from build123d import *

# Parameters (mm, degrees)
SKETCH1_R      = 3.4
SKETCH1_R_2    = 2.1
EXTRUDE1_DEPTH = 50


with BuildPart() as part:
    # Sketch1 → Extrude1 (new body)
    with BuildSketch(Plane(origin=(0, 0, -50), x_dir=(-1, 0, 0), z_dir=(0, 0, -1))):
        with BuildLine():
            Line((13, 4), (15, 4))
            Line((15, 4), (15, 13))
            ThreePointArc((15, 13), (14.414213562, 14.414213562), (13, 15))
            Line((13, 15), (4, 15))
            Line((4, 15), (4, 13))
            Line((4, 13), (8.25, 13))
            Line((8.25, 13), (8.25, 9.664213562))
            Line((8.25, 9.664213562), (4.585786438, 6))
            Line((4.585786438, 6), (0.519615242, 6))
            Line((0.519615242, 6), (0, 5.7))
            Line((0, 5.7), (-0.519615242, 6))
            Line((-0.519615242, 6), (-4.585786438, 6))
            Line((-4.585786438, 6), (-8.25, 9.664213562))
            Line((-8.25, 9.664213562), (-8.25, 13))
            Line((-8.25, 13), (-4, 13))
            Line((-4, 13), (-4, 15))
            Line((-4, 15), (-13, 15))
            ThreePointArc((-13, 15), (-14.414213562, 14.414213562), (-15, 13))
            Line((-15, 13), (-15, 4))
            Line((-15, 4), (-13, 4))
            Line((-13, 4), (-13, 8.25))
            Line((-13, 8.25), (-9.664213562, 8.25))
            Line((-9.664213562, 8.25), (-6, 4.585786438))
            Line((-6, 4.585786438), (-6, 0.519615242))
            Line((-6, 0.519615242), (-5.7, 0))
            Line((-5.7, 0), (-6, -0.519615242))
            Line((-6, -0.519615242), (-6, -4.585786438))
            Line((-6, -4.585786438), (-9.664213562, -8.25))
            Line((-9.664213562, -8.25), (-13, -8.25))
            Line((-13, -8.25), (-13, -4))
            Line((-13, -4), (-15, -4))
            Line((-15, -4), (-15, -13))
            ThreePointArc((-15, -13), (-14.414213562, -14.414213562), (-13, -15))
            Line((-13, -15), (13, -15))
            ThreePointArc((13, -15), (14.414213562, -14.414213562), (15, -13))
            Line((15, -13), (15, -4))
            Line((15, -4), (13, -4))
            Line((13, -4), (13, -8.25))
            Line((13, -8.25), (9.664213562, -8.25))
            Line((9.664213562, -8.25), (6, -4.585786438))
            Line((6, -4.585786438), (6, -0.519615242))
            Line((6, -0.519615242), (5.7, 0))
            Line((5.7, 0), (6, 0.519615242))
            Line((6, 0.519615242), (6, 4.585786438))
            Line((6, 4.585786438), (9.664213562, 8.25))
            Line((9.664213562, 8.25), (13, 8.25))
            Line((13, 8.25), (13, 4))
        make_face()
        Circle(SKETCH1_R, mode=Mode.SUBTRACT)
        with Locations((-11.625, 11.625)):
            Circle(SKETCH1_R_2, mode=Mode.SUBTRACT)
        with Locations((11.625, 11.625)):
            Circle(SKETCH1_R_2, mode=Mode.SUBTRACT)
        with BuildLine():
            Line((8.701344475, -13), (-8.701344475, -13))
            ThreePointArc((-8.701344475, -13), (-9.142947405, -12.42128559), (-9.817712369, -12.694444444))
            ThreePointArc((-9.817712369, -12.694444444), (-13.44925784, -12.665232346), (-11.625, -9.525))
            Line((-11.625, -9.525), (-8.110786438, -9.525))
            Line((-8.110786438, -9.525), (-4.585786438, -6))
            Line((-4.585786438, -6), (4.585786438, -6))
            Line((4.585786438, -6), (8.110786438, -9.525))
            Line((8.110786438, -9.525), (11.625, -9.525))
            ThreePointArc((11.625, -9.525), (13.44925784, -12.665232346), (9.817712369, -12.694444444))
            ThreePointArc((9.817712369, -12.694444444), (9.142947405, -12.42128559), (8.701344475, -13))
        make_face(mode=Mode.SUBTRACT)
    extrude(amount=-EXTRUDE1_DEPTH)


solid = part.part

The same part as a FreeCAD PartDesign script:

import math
import FreeCAD as App
import Part
import Sketcher
from FreeCAD import Vector
Q = App.Units.Quantity

doc = App.newDocument("Part")
body = doc.addObject("PartDesign::Body", "Body")

# Sketch on XY plane
sketch1 = body.newObject("Sketcher::SketchObject", "Sketch")
sketch1.AttachmentSupport = (doc.getObject("XY_Plane"), [""])
sketch1.MapMode = "FlatFace"
sketch1.AttachmentOffset = App.Placement(Vector(0, 0, -50), App.Rotation())
sketch1.addGeometry([
    Part.LineSegment(Vector(-13, 4, 0), Vector(-15, 4, 0)),  # 0
    Part.LineSegment(Vector(-15, 4, 0), Vector(-15, 13, 0)),  # 1
    Part.ArcOfCircle(Part.Circle(Vector(-13, 13, 0), Vector(0, 0, 1), 2), math.radians(90), math.radians(180)),  # 2
    Part.LineSegment(Vector(-13, 15, 0), Vector(-4, 15, 0)),  # 3
    Part.LineSegment(Vector(-4, 15, 0), Vector(-4, 13, 0)),  # 4
    Part.LineSegment(Vector(-4, 13, 0), Vector(-8.25, 13, 0)),  # 5
    Part.LineSegment(Vector(-8.25, 13, 0), Vector(-8.25, 9.664214, 0)),  # 6
    Part.LineSegment(Vector(-8.25, 9.664214, 0), Vector(-4.585786, 6, 0)),  # 7
    Part.LineSegment(Vector(-4.585786, 6, 0), Vector(-0.519615, 6, 0)),  # 8
    Part.LineSegment(Vector(-0.519615, 6, 0), Vector(0, 5.7, 0)),  # 9
    Part.LineSegment(Vector(0, 5.7, 0), Vector(0.519615, 6, 0)),  # 10
    Part.LineSegment(Vector(0.519615, 6, 0), Vector(4.585786, 6, 0)),  # 11
    Part.LineSegment(Vector(4.585786, 6, 0), Vector(8.25, 9.664214, 0)),  # 12
    Part.LineSegment(Vector(8.25, 9.664214, 0), Vector(8.25, 13, 0)),  # 13
    Part.LineSegment(Vector(8.25, 13, 0), Vector(4, 13, 0)),  # 14
    Part.LineSegment(Vector(4, 13, 0), Vector(4, 15, 0)),  # 15
    Part.LineSegment(Vector(4, 15, 0), Vector(13, 15, 0)),  # 16
    Part.ArcOfCircle(Part.Circle(Vector(13, 13, 0), Vector(0, 0, 1), 2), math.radians(0), math.radians(90)),  # 17
    Part.LineSegment(Vector(15, 13, 0), Vector(15, 4, 0)),  # 18
    Part.LineSegment(Vector(15, 4, 0), Vector(13, 4, 0)),  # 19
    Part.LineSegment(Vector(13, 4, 0), Vector(13, 8.25, 0)),  # 20
    Part.LineSegment(Vector(13, 8.25, 0), Vector(9.664214, 8.25, 0)),  # 21
    Part.LineSegment(Vector(9.664214, 8.25, 0), Vector(6, 4.585786, 0)),  # 22
    Part.LineSegment(Vector(6, 4.585786, 0), Vector(6, 0.519615, 0)),  # 23
    Part.LineSegment(Vector(6, 0.519615, 0), Vector(5.7, 0, 0)),  # 24
    Part.LineSegment(Vector(5.7, 0, 0), Vector(6, -0.519615, 0)),  # 25
    Part.LineSegment(Vector(6, -0.519615, 0), Vector(6, -4.585786, 0)),  # 26
    Part.LineSegment(Vector(6, -4.585786, 0), Vector(9.664214, -8.25, 0)),  # 27
    Part.LineSegment(Vector(9.664214, -8.25, 0), Vector(13, -8.25, 0)),  # 28
    Part.LineSegment(Vector(13, -8.25, 0), Vector(13, -4, 0)),  # 29
    Part.LineSegment(Vector(13, -4, 0), Vector(15, -4, 0)),  # 30
    Part.LineSegment(Vector(15, -4, 0), Vector(15, -13, 0)),  # 31
    Part.ArcOfCircle(Part.Circle(Vector(13, -13, 0), Vector(0, 0, 1), 2), math.radians(-90), math.radians(0)),  # 32
    Part.LineSegment(Vector(13, -15, 0), Vector(-13, -15, 0)),  # 33
    Part.ArcOfCircle(Part.Circle(Vector(-13, -13, 0), Vector(0, 0, 1), 2), math.radians(-180), math.radians(-90)),  # 34
    Part.LineSegment(Vector(-15, -13, 0), Vector(-15, -4, 0)),  # 35
    Part.LineSegment(Vector(-15, -4, 0), Vector(-13, -4, 0)),  # 36
    Part.LineSegment(Vector(-13, -4, 0), Vector(-13, -8.25, 0)),  # 37
    Part.LineSegment(Vector(-13, -8.25, 0), Vector(-9.664214, -8.25, 0)),  # 38
    Part.LineSegment(Vector(-9.664214, -8.25, 0), Vector(-6, -4.585786, 0)),  # 39
    Part.LineSegment(Vector(-6, -4.585786, 0), Vector(-6, -0.519615, 0)),  # 40
    Part.LineSegment(Vector(-6, -0.519615, 0), Vector(-5.7, 0, 0)),  # 41
    Part.LineSegment(Vector(-5.7, 0, 0), Vector(-6, 0.519615, 0)),  # 42
    Part.LineSegment(Vector(-6, 0.519615, 0), Vector(-6, 4.585786, 0)),  # 43
    Part.LineSegment(Vector(-6, 4.585786, 0), Vector(-9.664214, 8.25, 0)),  # 44
    Part.LineSegment(Vector(-9.664214, 8.25, 0), Vector(-13, 8.25, 0)),  # 45
    Part.LineSegment(Vector(-13, 8.25, 0), Vector(-13, 4, 0)),  # 46
    Part.ArcOfCircle(Part.Circle(Vector(-9.301344, -13, 0), Vector(0, 0, 1), 0.6), math.radians(0), math.radians(149.385498)),  # 47
    Part.LineSegment(Vector(-8.701344, -13, 0), Vector(8.701344, -13, 0)),  # 48
    Part.ArcOfCircle(Part.Circle(Vector(9.301344, -13, 0), Vector(0, 0, 1), 0.6), math.radians(30.614502), math.radians(180)),  # 49
    Part.ArcOfCircle(Part.Circle(Vector(11.625, -11.625, 0), Vector(0, 0, 1), 2.1), math.radians(-149.385498), math.radians(90)),  # 50
    Part.LineSegment(Vector(11.625, -9.525, 0), Vector(8.110786, -9.525, 0)),  # 51
    Part.LineSegment(Vector(8.110786, -9.525, 0), Vector(4.585786, -6, 0)),  # 52
    Part.LineSegment(Vector(4.585786, -6, 0), Vector(-4.585786, -6, 0)),  # 53
    Part.LineSegment(Vector(-4.585786, -6, 0), Vector(-8.110786, -9.525, 0)),  # 54
    Part.LineSegment(Vector(-8.110786, -9.525, 0), Vector(-11.625, -9.525, 0)),  # 55
    Part.ArcOfCircle(Part.Circle(Vector(-11.625, -11.625, 0), Vector(0, 0, 1), 2.1), math.radians(90), math.radians(329.385498)),  # 56
    Part.Circle(Vector(11.625, 11.625, 0), Vector(0, 0, 1), 2.1),  # 57
    Part.Circle(Vector(0, 0, 0), Vector(0, 0, 1), 3.4),  # 58
    Part.Circle(Vector(-11.625, 11.625, 0), Vector(0, 0, 1), 2.1),  # 59
], False)
sketch1.addConstraint([
    Sketcher.Constraint("Coincident", 0, 2, 1, 1),
    Sketcher.Constraint("Tangent", 1, 2, 2, 2),
    Sketcher.Constraint("Tangent", 2, 1, 3, 1),
    Sketcher.Constraint("Coincident", 3, 2, 4, 1),
    Sketcher.Constraint("Coincident", 4, 2, 5, 1),
    Sketcher.Constraint("Coincident", 5, 2, 6, 1),
    Sketcher.Constraint("Coincident", 6, 2, 7, 1),
    Sketcher.Constraint("Coincident", 7, 2, 8, 1),
    Sketcher.Constraint("Coincident", 8, 2, 9, 1),
    Sketcher.Constraint("Coincident", 9, 2, 10, 1),
    Sketcher.Constraint("Coincident", 10, 2, 11, 1),
    Sketcher.Constraint("Coincident", 11, 2, 12, 1),
    Sketcher.Constraint("Coincident", 12, 2, 13, 1),
    Sketcher.Constraint("Coincident", 13, 2, 14, 1),
    Sketcher.Constraint("Coincident", 14, 2, 15, 1),
    Sketcher.Constraint("Coincident", 15, 2, 16, 1),
    Sketcher.Constraint("Tangent", 16, 2, 17, 2),
    Sketcher.Constraint("Tangent", 17, 1, 18, 1),
    Sketcher.Constraint("Coincident", 18, 2, 19, 1),
    Sketcher.Constraint("Coincident", 19, 2, 20, 1),
    Sketcher.Constraint("Coincident", 20, 2, 21, 1),
    Sketcher.Constraint("Coincident", 21, 2, 22, 1),
    Sketcher.Constraint("Coincident", 22, 2, 23, 1),
    Sketcher.Constraint("Coincident", 23, 2, 24, 1),
    Sketcher.Constraint("Coincident", 24, 2, 25, 1),
    Sketcher.Constraint("Coincident", 25, 2, 26, 1),
    Sketcher.Constraint("Coincident", 26, 2, 27, 1),
    Sketcher.Constraint("Coincident", 27, 2, 28, 1),
    Sketcher.Constraint("Coincident", 28, 2, 29, 1),
    Sketcher.Constraint("Coincident", 29, 2, 30, 1),
    Sketcher.Constraint("Coincident", 30, 2, 31, 1),
    Sketcher.Constraint("Tangent", 31, 2, 32, 2),
    Sketcher.Constraint("Tangent", 32, 1, 33, 1),
    Sketcher.Constraint("Tangent", 33, 2, 34, 2),
    Sketcher.Constraint("Tangent", 34, 1, 35, 1),
    Sketcher.Constraint("Coincident", 35, 2, 36, 1),
    Sketcher.Constraint("Coincident", 36, 2, 37, 1),
    Sketcher.Constraint("Coincident", 37, 2, 38, 1),
    Sketcher.Constraint("Coincident", 38, 2, 39, 1),
    Sketcher.Constraint("Coincident", 39, 2, 40, 1),
    Sketcher.Constraint("Coincident", 40, 2, 41, 1),
    Sketcher.Constraint("Coincident", 41, 2, 42, 1),
    Sketcher.Constraint("Coincident", 42, 2, 43, 1),
    Sketcher.Constraint("Coincident", 43, 2, 44, 1),
    Sketcher.Constraint("Coincident", 44, 2, 45, 1),
    Sketcher.Constraint("Coincident", 45, 2, 46, 1),
    Sketcher.Constraint("Coincident", 46, 2, 0, 1),
    Sketcher.Constraint("Coincident", 47, 1, 48, 1),
    Sketcher.Constraint("Coincident", 48, 2, 49, 2),
    Sketcher.Constraint("Tangent", 49, 1, 50, 1),
    Sketcher.Constraint("Tangent", 50, 2, 51, 1),
    Sketcher.Constraint("Coincident", 51, 2, 52, 1),
    Sketcher.Constraint("Coincident", 52, 2, 53, 1),
    Sketcher.Constraint("Coincident", 53, 2, 54, 1),
    Sketcher.Constraint("Coincident", 54, 2, 55, 1),
    Sketcher.Constraint("Tangent", 55, 2, 56, 1),
    Sketcher.Constraint("Tangent", 56, 2, 47, 2),
    Sketcher.Constraint("Horizontal", 0),
    Sketcher.Constraint("Vertical", 1),
    Sketcher.Constraint("Horizontal", 3),
    Sketcher.Constraint("Vertical", 4),
    Sketcher.Constraint("Horizontal", 5),
    Sketcher.Constraint("Vertical", 6),
    Sketcher.Constraint("Horizontal", 8),
    Sketcher.Constraint("Horizontal", 11),
    Sketcher.Constraint("Vertical", 13),
    Sketcher.Constraint("Horizontal", 14),
    Sketcher.Constraint("Vertical", 15),
    Sketcher.Constraint("Horizontal", 16),
    Sketcher.Constraint("Vertical", 18),
    Sketcher.Constraint("Horizontal", 19),
    Sketcher.Constraint("Vertical", 20),
    Sketcher.Constraint("Horizontal", 21),
    Sketcher.Constraint("Vertical", 23),
    Sketcher.Constraint("Vertical", 26),
    Sketcher.Constraint("Horizontal", 28),
    Sketcher.Constraint("Vertical", 29),
    Sketcher.Constraint("Horizontal", 30),
    Sketcher.Constraint("Vertical", 31),
    Sketcher.Constraint("Horizontal", 33),
    Sketcher.Constraint("Vertical", 35),
    Sketcher.Constraint("Horizontal", 36),
    Sketcher.Constraint("Vertical", 37),
    Sketcher.Constraint("Horizontal", 38),
    Sketcher.Constraint("Vertical", 40),
    Sketcher.Constraint("Vertical", 43),
    Sketcher.Constraint("Horizontal", 45),
    Sketcher.Constraint("Vertical", 46),
    Sketcher.Constraint("Horizontal", 48),
    Sketcher.Constraint("Horizontal", 51),
    Sketcher.Constraint("Horizontal", 53),
    Sketcher.Constraint("Horizontal", 55),
    Sketcher.Constraint("Coincident", 58, 3, -1, 1),
    Sketcher.Constraint("Equal", 2, 17),
    Sketcher.Constraint("Equal", 17, 32),
    Sketcher.Constraint("Equal", 32, 34),
    Sketcher.Constraint("Equal", 47, 49),
    Sketcher.Constraint("Equal", 50, 56),
    Sketcher.Constraint("Equal", 56, 57),
    Sketcher.Constraint("Equal", 57, 59),
    Sketcher.Constraint("Symmetric", 2, 3, 32, 3, -1, 1),
    Sketcher.Constraint("Symmetric", 17, 3, 34, 3, -1, 1),
    Sketcher.Constraint("Symmetric", 56, 3, 57, 3, -1, 1),
    Sketcher.Constraint("Symmetric", 50, 3, 59, 3, -1, 1),
    Sketcher.Constraint("Symmetric", 19, 2, 36, 2, -1, 1),
    Sketcher.Constraint("Symmetric", 21, 2, 38, 2, -1, 1),
    Sketcher.Constraint("Symmetric", 22, 2, 39, 2, -1, 1),
    Sketcher.Constraint("Symmetric", 24, 2, 41, 2, -1, 1),
    Sketcher.Constraint("Symmetric", 25, 2, 42, 2, -1, 1),
    Sketcher.Constraint("Symmetric", 27, 2, 44, 2, -1, 1),
    Sketcher.Constraint("Symmetric", 29, 2, 46, 2, -1, 1),
    Sketcher.Constraint("Symmetric", 7, 2, 52, 2, -1, 1),
    Sketcher.Constraint("Symmetric", 11, 2, 53, 2, -1, 1),
    Sketcher.Constraint("Symmetric", 47, 3, 49, 3, -2),
    Sketcher.Constraint("Symmetric", 6, 2, 12, 2, -2),
    Sketcher.Constraint("Symmetric", 4, 2, 14, 2, -2),
    Sketcher.Constraint("Symmetric", 0, 2, 18, 2, -2),
    Sketcher.Constraint("Symmetric", 28, 2, 37, 2, -2),
    Sketcher.Constraint("Symmetric", 26, 2, 39, 2, -2),
    Sketcher.Constraint("Symmetric", 51, 2, 54, 2, -2),
    Sketcher.Constraint("PointOnObject", 9, 2, -2),
    Sketcher.Constraint("PointOnObject", 24, 2, -1),
    Sketcher.Constraint("Perpendicular", 7, 12),
    Sketcher.Constraint("Parallel", 12, 22),
    Sketcher.Constraint("Perpendicular", 9, 24),
    Sketcher.Constraint("Perpendicular", 10, 25),
    Sketcher.Constraint("Perpendicular", 22, 27),
    Sketcher.Constraint("Parallel", 24, 41),
    Sketcher.Constraint("Perpendicular", 39, 44),
    Sketcher.Constraint("Parallel", 44, 52),
    Sketcher.Constraint("Perpendicular", 52, 54),
    Sketcher.Constraint("Horizontal", 34, 3, 47, 3),
    Sketcher.Constraint("Horizontal", 1, 2, 4, 2),
    Sketcher.Constraint("Horizontal", 25, 2, 40, 2),
    Sketcher.Constraint("Horizontal", 34, 1, 47, 1),
    Sketcher.Constraint("Vertical", 16, 2, 19, 2),
    Sketcher.Constraint("Equal", 16, 1),
    Sketcher.Constraint("Equal", 45, 6),
    Sketcher.Constraint("Equal", 14, 20),
    Sketcher.Constraint("Equal", 11, 23),
    Sketcher.Constraint("Equal", 12, 22),
    Sketcher.Constraint("Equal", 10, 24),
    Sketcher.Constraint("Radius", 2, Q("2 mm")),
    Sketcher.Constraint("Diameter", 57, Q("4.2 mm")),
    Sketcher.Constraint("Diameter", 58, Q("6.8 mm")),
    Sketcher.Constraint("Radius", 47, Q("0.6 mm")),
    Sketcher.Constraint("DistanceX", 3, 1, 3, 2, Q("9 mm")),
    Sketcher.Constraint("DistanceX", 33, 2, 33, 1, Q("26 mm")),
    Sketcher.Constraint("Angle", 9, Q("-30 deg")),
    Sketcher.Constraint("DistanceY", -1, 1, 7, 2, Q("6 mm")),
    Sketcher.Constraint("Distance", 9, Q("0.6 mm")),
    Sketcher.Constraint("DistanceX", 5, 2, 5, 1, Q("4.25 mm")),
    Sketcher.Constraint("DistanceX", -1, 1, 50, 3, Q("11.625 mm")),
    Sketcher.Constraint("DistanceY", 50, 3, -1, 1, Q("11.625 mm")),
    Sketcher.Constraint("DistanceX", 8, 1, 8, 2, Q("4.066171 mm")),
])
pad1 = body.newObject("PartDesign::Pad", "Pad")
pad1.Profile = sketch1
pad1.Length = 50

doc.recompute()
